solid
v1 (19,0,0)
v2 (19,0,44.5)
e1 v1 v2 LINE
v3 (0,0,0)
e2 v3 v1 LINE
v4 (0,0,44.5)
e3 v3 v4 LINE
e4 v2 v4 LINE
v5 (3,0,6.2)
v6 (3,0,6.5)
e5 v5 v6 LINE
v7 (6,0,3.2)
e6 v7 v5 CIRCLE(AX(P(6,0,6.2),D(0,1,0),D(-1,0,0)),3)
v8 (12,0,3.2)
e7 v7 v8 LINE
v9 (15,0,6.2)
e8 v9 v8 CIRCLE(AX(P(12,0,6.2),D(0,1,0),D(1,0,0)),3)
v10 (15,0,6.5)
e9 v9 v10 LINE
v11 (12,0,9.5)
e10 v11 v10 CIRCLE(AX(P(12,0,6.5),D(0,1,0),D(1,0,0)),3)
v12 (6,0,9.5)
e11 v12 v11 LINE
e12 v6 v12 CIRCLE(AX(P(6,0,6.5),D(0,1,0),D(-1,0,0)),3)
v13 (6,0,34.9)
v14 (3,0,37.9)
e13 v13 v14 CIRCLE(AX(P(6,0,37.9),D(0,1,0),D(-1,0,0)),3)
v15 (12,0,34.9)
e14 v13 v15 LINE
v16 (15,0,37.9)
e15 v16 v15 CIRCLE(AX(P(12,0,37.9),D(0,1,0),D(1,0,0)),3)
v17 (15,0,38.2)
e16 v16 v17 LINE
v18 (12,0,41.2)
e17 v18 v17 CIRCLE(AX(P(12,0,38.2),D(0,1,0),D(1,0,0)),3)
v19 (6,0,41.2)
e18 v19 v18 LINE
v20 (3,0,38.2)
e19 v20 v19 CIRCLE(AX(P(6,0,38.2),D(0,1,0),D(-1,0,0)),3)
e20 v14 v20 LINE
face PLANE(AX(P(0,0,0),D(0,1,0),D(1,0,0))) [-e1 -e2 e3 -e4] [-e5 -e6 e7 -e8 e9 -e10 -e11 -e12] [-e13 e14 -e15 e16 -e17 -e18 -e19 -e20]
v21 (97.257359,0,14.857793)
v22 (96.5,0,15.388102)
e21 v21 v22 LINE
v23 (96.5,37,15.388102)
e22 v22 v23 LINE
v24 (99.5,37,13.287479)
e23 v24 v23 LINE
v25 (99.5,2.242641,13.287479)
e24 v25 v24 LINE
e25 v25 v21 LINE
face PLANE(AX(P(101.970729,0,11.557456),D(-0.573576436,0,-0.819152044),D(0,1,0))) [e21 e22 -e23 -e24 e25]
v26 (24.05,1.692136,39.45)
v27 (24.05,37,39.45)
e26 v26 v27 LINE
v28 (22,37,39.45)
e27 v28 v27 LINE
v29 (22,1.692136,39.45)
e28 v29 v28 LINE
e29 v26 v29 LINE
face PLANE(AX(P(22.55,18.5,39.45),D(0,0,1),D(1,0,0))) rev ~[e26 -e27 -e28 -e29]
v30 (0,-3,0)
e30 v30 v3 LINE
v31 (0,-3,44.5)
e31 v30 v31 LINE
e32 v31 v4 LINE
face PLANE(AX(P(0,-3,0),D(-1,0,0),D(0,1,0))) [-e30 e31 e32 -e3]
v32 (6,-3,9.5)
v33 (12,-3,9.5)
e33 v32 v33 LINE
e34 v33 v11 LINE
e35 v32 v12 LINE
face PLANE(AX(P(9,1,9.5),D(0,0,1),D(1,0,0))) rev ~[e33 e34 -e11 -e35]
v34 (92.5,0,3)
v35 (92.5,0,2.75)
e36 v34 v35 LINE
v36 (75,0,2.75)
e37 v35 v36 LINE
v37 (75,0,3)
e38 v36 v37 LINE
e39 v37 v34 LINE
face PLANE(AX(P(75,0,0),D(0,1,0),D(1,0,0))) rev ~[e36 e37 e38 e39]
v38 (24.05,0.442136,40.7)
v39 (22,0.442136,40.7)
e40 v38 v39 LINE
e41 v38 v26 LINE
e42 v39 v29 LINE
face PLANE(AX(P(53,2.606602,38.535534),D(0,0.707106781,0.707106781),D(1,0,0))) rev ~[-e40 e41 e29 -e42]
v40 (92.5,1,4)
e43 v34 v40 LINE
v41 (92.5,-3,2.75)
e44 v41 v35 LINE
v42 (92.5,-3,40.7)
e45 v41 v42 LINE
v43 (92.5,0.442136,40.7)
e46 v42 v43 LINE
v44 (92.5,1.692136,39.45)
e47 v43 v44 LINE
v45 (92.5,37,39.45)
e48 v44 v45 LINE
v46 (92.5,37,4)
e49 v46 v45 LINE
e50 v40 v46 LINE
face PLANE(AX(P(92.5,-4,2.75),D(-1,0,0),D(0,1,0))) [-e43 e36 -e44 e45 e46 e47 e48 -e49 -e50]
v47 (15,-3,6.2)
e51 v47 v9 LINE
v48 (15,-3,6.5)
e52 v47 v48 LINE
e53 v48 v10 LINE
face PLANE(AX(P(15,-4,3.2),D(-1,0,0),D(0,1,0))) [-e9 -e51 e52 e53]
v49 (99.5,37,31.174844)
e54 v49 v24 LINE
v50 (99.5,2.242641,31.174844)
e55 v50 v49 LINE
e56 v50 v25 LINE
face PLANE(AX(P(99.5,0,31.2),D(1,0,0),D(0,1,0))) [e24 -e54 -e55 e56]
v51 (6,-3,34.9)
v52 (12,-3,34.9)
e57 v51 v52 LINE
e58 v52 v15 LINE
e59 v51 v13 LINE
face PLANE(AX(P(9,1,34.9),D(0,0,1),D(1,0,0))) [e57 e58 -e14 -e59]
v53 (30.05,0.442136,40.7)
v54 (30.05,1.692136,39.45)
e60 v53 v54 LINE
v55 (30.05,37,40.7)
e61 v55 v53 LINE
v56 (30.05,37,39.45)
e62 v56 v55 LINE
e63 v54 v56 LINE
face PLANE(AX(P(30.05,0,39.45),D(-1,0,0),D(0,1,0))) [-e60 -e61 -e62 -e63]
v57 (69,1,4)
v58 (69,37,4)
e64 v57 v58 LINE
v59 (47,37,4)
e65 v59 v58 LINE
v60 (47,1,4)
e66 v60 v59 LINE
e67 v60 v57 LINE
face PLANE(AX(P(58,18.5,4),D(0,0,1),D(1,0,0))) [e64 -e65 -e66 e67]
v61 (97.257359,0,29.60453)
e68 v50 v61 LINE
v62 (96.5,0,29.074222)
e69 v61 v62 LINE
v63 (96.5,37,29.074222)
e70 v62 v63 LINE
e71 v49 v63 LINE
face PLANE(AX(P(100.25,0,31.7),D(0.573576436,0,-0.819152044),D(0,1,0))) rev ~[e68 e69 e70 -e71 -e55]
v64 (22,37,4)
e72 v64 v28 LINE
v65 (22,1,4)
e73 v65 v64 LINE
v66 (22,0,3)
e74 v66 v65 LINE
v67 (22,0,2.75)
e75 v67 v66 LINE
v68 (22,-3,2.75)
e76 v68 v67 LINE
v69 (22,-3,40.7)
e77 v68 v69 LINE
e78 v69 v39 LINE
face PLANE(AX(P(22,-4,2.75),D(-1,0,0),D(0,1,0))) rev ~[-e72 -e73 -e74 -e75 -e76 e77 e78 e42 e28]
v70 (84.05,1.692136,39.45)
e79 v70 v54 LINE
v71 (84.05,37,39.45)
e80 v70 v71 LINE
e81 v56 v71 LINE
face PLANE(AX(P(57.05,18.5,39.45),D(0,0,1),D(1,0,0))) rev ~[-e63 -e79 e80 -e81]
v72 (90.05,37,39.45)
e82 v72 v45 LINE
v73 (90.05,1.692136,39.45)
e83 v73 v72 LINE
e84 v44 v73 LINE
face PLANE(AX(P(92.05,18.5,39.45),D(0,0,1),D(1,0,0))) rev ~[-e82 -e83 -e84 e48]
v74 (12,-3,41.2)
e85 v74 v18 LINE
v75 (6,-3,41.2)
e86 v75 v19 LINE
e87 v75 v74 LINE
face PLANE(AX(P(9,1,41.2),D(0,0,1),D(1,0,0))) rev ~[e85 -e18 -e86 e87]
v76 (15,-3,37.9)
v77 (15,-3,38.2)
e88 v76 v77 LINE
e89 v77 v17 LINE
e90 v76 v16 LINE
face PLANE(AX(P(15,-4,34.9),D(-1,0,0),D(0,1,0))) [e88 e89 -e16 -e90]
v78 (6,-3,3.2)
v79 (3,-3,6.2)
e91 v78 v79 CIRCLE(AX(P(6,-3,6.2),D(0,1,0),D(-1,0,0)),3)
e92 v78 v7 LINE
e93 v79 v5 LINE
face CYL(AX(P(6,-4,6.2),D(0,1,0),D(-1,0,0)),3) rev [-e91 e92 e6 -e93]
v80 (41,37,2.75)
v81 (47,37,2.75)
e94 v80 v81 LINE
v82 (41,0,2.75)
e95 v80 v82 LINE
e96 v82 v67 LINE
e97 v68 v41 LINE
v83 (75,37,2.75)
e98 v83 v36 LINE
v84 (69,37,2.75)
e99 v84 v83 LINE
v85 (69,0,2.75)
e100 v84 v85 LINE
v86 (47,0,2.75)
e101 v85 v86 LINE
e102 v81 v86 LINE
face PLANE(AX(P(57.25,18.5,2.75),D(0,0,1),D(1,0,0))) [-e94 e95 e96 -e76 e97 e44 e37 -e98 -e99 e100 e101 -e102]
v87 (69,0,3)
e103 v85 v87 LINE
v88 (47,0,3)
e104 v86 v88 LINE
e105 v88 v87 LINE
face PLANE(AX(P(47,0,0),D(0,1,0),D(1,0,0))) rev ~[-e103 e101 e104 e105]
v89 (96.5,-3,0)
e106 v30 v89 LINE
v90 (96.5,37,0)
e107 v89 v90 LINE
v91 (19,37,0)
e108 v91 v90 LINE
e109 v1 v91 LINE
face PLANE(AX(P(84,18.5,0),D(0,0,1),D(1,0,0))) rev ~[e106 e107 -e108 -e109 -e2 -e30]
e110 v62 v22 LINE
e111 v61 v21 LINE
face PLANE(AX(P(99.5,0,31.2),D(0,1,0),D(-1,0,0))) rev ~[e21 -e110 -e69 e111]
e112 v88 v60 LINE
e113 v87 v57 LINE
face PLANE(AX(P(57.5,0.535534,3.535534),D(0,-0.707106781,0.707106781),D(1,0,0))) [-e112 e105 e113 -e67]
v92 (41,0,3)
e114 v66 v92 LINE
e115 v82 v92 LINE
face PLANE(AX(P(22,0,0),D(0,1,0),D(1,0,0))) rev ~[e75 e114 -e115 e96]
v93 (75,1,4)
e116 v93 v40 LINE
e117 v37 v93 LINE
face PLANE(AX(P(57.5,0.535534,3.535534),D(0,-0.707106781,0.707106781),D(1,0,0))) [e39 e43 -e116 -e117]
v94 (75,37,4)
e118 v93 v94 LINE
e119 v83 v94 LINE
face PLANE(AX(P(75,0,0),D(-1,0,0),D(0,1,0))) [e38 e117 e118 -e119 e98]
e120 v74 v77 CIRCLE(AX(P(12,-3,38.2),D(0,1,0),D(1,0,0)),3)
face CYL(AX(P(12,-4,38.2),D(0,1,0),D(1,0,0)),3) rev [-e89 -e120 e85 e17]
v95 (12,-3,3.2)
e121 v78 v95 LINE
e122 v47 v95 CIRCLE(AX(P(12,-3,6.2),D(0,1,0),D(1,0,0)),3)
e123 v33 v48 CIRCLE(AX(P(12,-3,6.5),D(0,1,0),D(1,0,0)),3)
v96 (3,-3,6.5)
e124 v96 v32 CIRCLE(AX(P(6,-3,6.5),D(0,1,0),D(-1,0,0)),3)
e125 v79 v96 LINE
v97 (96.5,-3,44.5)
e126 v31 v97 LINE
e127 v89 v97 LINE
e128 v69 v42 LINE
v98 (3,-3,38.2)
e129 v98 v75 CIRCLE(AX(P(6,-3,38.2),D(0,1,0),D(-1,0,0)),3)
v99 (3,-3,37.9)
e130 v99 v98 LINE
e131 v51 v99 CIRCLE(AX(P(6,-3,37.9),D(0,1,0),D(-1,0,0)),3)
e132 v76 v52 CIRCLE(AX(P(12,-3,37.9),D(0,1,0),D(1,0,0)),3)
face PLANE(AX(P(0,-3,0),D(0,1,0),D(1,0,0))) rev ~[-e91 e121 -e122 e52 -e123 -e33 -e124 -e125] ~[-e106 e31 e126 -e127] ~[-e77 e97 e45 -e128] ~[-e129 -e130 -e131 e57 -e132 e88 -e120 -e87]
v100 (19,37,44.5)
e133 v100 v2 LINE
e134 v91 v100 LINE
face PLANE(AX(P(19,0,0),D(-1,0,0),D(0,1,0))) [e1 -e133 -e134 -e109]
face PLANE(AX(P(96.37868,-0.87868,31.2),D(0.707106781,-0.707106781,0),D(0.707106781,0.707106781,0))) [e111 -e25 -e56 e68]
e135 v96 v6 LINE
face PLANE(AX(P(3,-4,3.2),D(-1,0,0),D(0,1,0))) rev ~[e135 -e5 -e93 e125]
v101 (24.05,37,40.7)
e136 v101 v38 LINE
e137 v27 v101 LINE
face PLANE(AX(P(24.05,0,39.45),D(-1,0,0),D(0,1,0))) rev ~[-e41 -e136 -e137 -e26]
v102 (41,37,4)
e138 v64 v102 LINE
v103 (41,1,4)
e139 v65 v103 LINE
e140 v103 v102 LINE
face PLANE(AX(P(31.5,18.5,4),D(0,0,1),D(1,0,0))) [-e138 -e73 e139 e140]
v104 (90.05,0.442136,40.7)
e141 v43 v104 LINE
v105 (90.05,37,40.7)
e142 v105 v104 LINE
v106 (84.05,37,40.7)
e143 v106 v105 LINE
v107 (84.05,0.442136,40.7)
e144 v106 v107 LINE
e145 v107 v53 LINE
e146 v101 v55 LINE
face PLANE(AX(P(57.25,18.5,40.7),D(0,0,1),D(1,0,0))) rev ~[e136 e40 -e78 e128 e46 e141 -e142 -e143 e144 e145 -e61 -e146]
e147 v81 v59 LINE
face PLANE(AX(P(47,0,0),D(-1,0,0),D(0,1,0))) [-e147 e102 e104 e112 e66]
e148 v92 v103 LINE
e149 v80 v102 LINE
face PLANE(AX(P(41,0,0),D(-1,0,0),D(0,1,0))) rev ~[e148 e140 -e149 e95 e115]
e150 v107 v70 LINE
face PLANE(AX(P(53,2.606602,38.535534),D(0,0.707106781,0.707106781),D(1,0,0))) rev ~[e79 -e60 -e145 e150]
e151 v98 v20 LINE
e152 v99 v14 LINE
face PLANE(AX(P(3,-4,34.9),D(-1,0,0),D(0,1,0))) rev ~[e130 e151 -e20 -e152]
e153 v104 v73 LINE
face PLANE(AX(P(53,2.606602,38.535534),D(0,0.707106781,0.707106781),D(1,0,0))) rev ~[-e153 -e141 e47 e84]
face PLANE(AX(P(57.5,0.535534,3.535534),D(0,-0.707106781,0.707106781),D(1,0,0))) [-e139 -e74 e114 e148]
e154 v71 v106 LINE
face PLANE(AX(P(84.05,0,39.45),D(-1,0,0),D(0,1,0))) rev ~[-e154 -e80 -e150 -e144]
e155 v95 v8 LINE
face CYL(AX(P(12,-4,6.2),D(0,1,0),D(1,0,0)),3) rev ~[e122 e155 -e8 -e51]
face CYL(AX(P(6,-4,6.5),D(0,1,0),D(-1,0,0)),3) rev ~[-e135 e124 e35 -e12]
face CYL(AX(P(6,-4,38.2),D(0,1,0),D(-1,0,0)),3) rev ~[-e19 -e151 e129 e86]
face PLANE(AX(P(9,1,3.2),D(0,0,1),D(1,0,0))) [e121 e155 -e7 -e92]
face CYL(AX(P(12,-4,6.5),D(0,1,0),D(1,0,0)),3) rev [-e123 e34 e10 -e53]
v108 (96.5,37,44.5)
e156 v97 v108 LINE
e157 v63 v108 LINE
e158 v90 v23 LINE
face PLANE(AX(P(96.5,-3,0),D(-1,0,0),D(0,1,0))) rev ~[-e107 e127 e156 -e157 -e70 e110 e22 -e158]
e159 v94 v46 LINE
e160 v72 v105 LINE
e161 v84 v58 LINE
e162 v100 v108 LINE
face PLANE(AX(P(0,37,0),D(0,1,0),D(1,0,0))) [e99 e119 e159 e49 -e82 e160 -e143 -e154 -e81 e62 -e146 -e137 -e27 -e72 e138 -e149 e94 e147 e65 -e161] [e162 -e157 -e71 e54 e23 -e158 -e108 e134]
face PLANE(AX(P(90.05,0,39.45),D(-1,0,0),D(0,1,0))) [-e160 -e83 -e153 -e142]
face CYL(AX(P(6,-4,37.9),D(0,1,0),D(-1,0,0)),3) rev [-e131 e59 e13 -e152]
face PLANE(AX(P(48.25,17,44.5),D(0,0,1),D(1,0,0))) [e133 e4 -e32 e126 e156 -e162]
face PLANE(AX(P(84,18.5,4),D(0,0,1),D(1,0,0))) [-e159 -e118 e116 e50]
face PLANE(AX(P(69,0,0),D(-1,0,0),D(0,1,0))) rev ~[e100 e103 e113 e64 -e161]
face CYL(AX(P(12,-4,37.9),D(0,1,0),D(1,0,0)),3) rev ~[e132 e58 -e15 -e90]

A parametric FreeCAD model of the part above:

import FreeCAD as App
import Part
import Sketcher
Q = App.Units.Quantity


def edges_at(feature, points):
    """Names of the edges that pass closest to the given points."""
    edges = feature.Shape.Edges
    near = lambda p: min(range(len(edges)), key=lambda i: edges[i].distToShape(Part.Vertex(*p))[0])
    return sorted({f"Edge{near(p) + 1}" for p in points})

doc = App.newDocument("Part")
params = doc.addObject("Spreadsheet::Sheet", "Params")
for row, (alias, value) in enumerate([
    ("sketch1_width", "71 mm"),
    ("sketch1_height", "10 mm"),
    ("pad1_length", "10 mm"),
    ("sketch2_width", "22 mm"),
    ("sketch2_height", "37 mm"),
    ("pad2_length", "4 mm"),
    ("sketch3_width", "18 mm"),
    ("sketch3_height", "37 mm"),
    ("pad3_length", "4 mm"),
    ("sketch4_width", "19 mm"),
    ("sketch4_height", "37 mm"),
    ("pad4_length", "4 mm"),
    ("sketch5_width", "80 mm"),
    ("sketch5_height", "10 mm"),
    ("pad5_length", "10 mm"),
    ("sketch6_width", "3 mm"),
    ("sketch6_height", "37 mm"),
    ("pad6_length", "4 mm"),
    ("sketch7_width", "4 mm"),
    ("sketch7_height", "37 mm"),
    ("pad7_length", "4 mm"),
    ("sketch8_width", "54 mm"),
    ("sketch8_height", "37 mm"),
    ("pad8_length", "4 mm"),
    ("sketch9_width", "12 mm"),
    ("sketch9_height", "10 mm"),
    ("pad9_length", "6.3 mm"),
    ("fillet_radius", "3 mm"),
    ("sketch10_width", "12 mm"),
    ("sketch10_height", "10 mm"),
    ("pad10_length", "6.3 mm"),
    ("fillet2_radius", "3 mm"),
    ("sketch11_width", "19 mm"),
    ("sketch11_height", "37 mm"),
    ("pad11_length", "45 mm"),
    ("sketch12_height", "45 mm"),
    ("sketch12_width", "70.5 mm"),
    ("pad12_length", "37.95 mm"),
    ("sketch13_height", "40 mm"),
    ("sketch13_width", "96.5 mm"),
    ("pad13_length", "44.5 mm"),
    ("sketch14_width", "3 mm"),
    ("sketch14_height", "37 mm"),
    ("pad14_length", "17.92 mm"),
    ("sketch15_width", "3 mm"),
    ("sketch15_height", "37 mm"),
    ("pad15_length", "17.92 mm"),
    ("sketch16_width", "3 mm"),
    ("sketch16_height", "37 mm"),
    ("pad16_length", "17.92 mm"),
    ("sketch17_width", "3 mm"),
    ("sketch17_height", "37 mm"),
    ("pad17_length", "17.92 mm"),
], start=1):
    params.set(f"A{row}", alias)
    params.set(f"B{row}", "=" + value)
    params.setAlias(f"B{row}", alias)

body = doc.addObject("PartDesign::Body", "Body")

# Sketch on XY plane
sketch1 = doc.addObject("Sketcher::SketchObject", "Sketch")
body.addObject(sketch1)
sketch1.AttachmentSupport = (doc.XY_Plane, [""])
sketch1.MapMode = "FlatFace"
sketch1.addGeometry([
    Part.LineSegment(App.Vector(0, 10, 0), App.Vector(0, 0, 0)),
    Part.LineSegment(App.Vector(0, 0, 0), App.Vector(71, 0, 0)),
    Part.LineSegment(App.Vector(71, 0, 0), App.Vector(71, 10, 0)),
    Part.LineSegment(App.Vector(71, 10, 0), App.Vector(0, 10, 0)),
], False)
sketch1.addConstraint([
    Sketcher.Constraint("Coincident", 0, 2, 1, 1),
    Sketcher.Constraint("Coincident", 1, 2, 2, 1),
    Sketcher.Constraint("Coincident", 2, 2, 3, 1),
    Sketcher.Constraint("Coincident", 3, 2, 0, 1),
    Sketcher.Constraint("Vertical", 0),
    Sketcher.Constraint("Horizontal", 1),
    Sketcher.Constraint("Vertical", 2),
    Sketcher.Constraint("Horizontal", 3),
    Sketcher.Constraint("Coincident", 0, 2, -1, 1),
    Sketcher.Constraint("DistanceX", 1, 1, 1, 2, Q("71 mm")),
    Sketcher.Constraint("DistanceY", 0, 2, 0, 1, Q("10 mm")),
])
sketch1.setExpression("Constraints[9]", "Params.sketch1_width")
sketch1.setExpression("Constraints[10]", "Params.sketch1_height")
pad1 = doc.addObject("PartDesign::Pad", "Pad")
body.addObject(pad1)
pad1.Profile = sketch1
pad1.setExpression("Length", "Params.pad1_length")
body2 = doc.addObject("PartDesign::Body", "Body001")
doc.recompute()

body.Placement = App.Placement(App.Vector(22, -3, 0), App.Rotation(App.Vector(1, 0, 0), 45))
boolean = doc.addObject("PartDesign::Boolean", "Boolean")
body2.addObject(boolean)
boolean.Type = "Fuse"
boolean.addObjects([body])
body3 = doc.addObject("PartDesign::Body", "Body002")

# Sketch on XY plane
sketch2 = doc.addObject("Sketcher::SketchObject", "Sketch001")
body3.addObject(sketch2)
sketch2.AttachmentSupport = (doc.getObject("XY_Plane002"), [""])
sketch2.MapMode = "FlatFace"
sketch2.addGeometry([
    Part.LineSegment(App.Vector(47, 37, 0), App.Vector(47, 0, 0)),
    Part.LineSegment(App.Vector(47, 0, 0), App.Vector(69, 0, 0)),
    Part.LineSegment(App.Vector(69, 0, 0), App.Vector(69, 37, 0)),
    Part.LineSegment(App.Vector(69, 37, 0), App.Vector(47, 37, 0)),
], False)
sketch2.addConstraint([
    Sketcher.Constraint("Coincident", 0, 2, 1, 1),
    Sketcher.Constraint("Coincident", 1, 2, 2, 1),
    Sketcher.Constraint("Coincident", 2, 2, 3, 1),
    Sketcher.Constraint("Coincident", 3, 2, 0, 1),
    Sketcher.Constraint("Vertical", 0),
    Sketcher.Constraint("Horizontal", 1),
    Sketcher.Constraint("Vertical", 2),
    Sketcher.Constraint("Horizontal", 3),
    Sketcher.Constraint("PointOnObject", 0, 2, -1),
    Sketcher.Constraint("DistanceX", 1, 1, 1, 2, Q("22 mm")),
    Sketcher.Constraint("DistanceY", 0, 2, 0, 1, Q("37 mm")),
    Sketcher.Constraint("DistanceX", -1, 1, 0, 2, Q("47 mm")),
])
sketch2.setExpression("Constraints[9]", "Params.sketch2_width")
sketch2.setExpression("Constraints[10]", "Params.sketch2_height")
pad2 = doc.addObject("PartDesign::Pad", "Pad001")
body3.addObject(pad2)
pad2.Profile = sketch2
pad2.setExpression("Length", "Params.pad2_length")
body4 = doc.addObject("PartDesign::Body", "Body003")

# Sketch on XY plane
sketch3 = doc.addObject("Sketcher::SketchObject", "Sketch002")
body4.addObject(sketch3)
sketch3.AttachmentSupport = (doc.getObject("XY_Plane003"), [""])
sketch3.MapMode = "FlatFace"
sketch3.addGeometry([
    Part.LineSegment(App.Vector(75, 37, 0), App.Vector(75, 0, 0)),
    Part.LineSegment(App.Vector(75, 0, 0), App.Vector(93, 0, 0)),
    Part.LineSegment(App.Vector(93, 0, 0), App.Vector(93, 37, 0)),
    Part.LineSegment(App.Vector(93, 37, 0), App.Vector(75, 37, 0)),
], False)
sketch3.addConstraint([
    Sketcher.Constraint("Coincident", 0, 2, 1, 1),
    Sketcher.Constraint("Coincident", 1, 2, 2, 1),
    Sketcher.Constraint("Coincident", 2, 2, 3, 1),
    Sketcher.Constraint("Coincident", 3, 2, 0, 1),
    Sketcher.Constraint("Vertical", 0),
    Sketcher.Constraint("Horizontal", 1),
    Sketcher.Constraint("Vertical", 2),
    Sketcher.Constraint("Horizontal", 3),
    Sketcher.Constraint("PointOnObject", 0, 2, -1),
    Sketcher.Constraint("DistanceX", 1, 1, 1, 2, Q("18 mm")),
    Sketcher.Constraint("DistanceY", 0, 2, 0, 1, Q("37 mm")),
    Sketcher.Constraint("DistanceX", -1, 1, 0, 2, Q("75 mm")),
])
sketch3.setExpression("Constraints[9]", "Params.sketch3_width")
sketch3.setExpression("Constraints[10]", "Params.sketch3_height")
pad3 = doc.addObject("PartDesign::Pad", "Pad002")
body4.addObject(pad3)
pad3.Profile = sketch3
pad3.setExpression("Length", "Params.pad3_length")
body5 = doc.addObject("PartDesign::Body", "Body004")
body5.AllowCompound = True

# Sketch on XY plane
sketch4 = doc.addObject("Sketcher::SketchObject", "Sketch003")
body5.addObject(sketch4)
sketch4.AttachmentSupport = (doc.getObject("XY_Plane004"), [""])
sketch4.MapMode = "FlatFace"
sketch4.addGeometry([
    Part.LineSegment(App.Vector(22, 37, 0), App.Vector(22, 0, 0)),
    Part.LineSegment(App.Vector(22, 0, 0), App.Vector(41, 0, 0)),
    Part.LineSegment(App.Vector(41, 0, 0), App.Vector(41, 37, 0)),
    Part.LineSegment(App.Vector(41, 37, 0), App.Vector(22, 37, 0)),
], False)
sketch4.addConstraint([
    Sketcher.Constraint("Coincident", 0, 2, 1, 1),
    Sketcher.Constraint("Coincident", 1, 2, 2, 1),
    Sketcher.Constraint("Coincident", 2, 2, 3, 1),
    Sketcher.Constraint("Coincident", 3, 2, 0, 1),
    Sketcher.Constraint("Vertical", 0),
    Sketcher.Constraint("Horizontal", 1),
    Sketcher.Constraint("Vertical", 2),
    Sketcher.Constraint("Horizontal", 3),
    Sketcher.Constraint("PointOnObject", 0, 2, -1),
    Sketcher.Constraint("DistanceX", 1, 1, 1, 2, Q("19 mm")),
    Sketcher.Constraint("DistanceY", 0, 2, 0, 1, Q("37 mm")),
    Sketcher.Constraint("DistanceX", -1, 1, 0, 2, Q("22 mm")),
])
sketch4.setExpression("Constraints[9]", "Params.sketch4_width")
sketch4.setExpression("Constraints[10]", "Params.sketch4_height")
pad4 = doc.addObject("PartDesign::Pad", "Pad003")
body5.addObject(pad4)
pad4.Profile = sketch4
pad4.setExpression("Length", "Params.pad4_length")
doc.recompute()

boolean2 = doc.addObject("PartDesign::Boolean", "Boolean001")
body5.addObject(boolean2)
boolean2.Type = "Fuse"
boolean2.addObjects([body3])
doc.recompute()

boolean3 = doc.addObject("PartDesign::Boolean", "Boolean002")
body5.addObject(boolean3)
boolean3.Type = "Fuse"
boolean3.addObjects([body4])
doc.recompute()

boolean4 = doc.addObject("PartDesign::Boolean", "Boolean003")
body5.addObject(boolean4)
boolean4.Type = "Cut"
boolean4.addObjects([body2])
body6 = doc.addObject("PartDesign::Body", "Body005")

# Sketch on XY plane
sketch5 = doc.addObject("Sketcher::SketchObject", "Sketch004")
body6.addObject(sketch5)
sketch5.AttachmentSupport = (doc.getObject("XY_Plane005"), [""])
sketch5.MapMode = "FlatFace"
sketch5.addGeometry([
    Part.LineSegment(App.Vector(0, 10, 0), App.Vector(0, 0, 0)),
    Part.LineSegment(App.Vector(0, 0, 0), App.Vector(80, 0, 0)),
    Part.LineSegment(App.Vector(80, 0, 0), App.Vector(80, 10, 0)),
    Part.LineSegment(App.Vector(80, 10, 0), App.Vector(0, 10, 0)),
], False)
sketch5.addConstraint([
    Sketcher.Constraint("Coincident", 0, 2, 1, 1),
    Sketcher.Constraint("Coincident", 1, 2, 2, 1),
    Sketcher.Constraint("Coincident", 2, 2, 3, 1),
    Sketcher.Constraint("Coincident", 3, 2, 0, 1),
    Sketcher.Constraint("Vertical", 0),
    Sketcher.Constraint("Horizontal", 1),
    Sketcher.Constraint("Vertical", 2),
    Sketcher.Constraint("Horizontal", 3),
    Sketcher.Constraint("Coincident", 0, 2, -1, 1),
    Sketcher.Constraint("DistanceX", 1, 1, 1, 2, Q("80 mm")),
    Sketcher.Constraint("DistanceY", 0, 2, 0, 1, Q("10 mm")),
])
sketch5.setExpression("Constraints[9]", "Params.sketch5_width")
sketch5.setExpression("Constraints[10]", "Params.sketch5_height")
pad5 = doc.addObject("PartDesign::Pad", "Pad004")
body6.addObject(pad5)
pad5.Profile = sketch5
pad5.setExpression("Length", "Params.pad5_length")
body7 = doc.addObject("PartDesign::Body", "Body006")
doc.recompute()

body6.Placement = App.Placement(App.Vector(13, -8, 35), App.Rotation(App.Vector(1, 0, 0), 315))
boolean5 = doc.addObject("PartDesign::Boolean", "Boolean004")
body7.addObject(boolean5)
boolean5.Type = "Fuse"
boolean5.addObjects([body6])
body8 = doc.addObject("PartDesign::Body", "Body007")

# Sketch on XY plane
sketch6 = doc.addObject("Sketcher::SketchObject", "Sketch005")
body8.addObject(sketch6)
sketch6.AttachmentSupport = (doc.getObject("XY_Plane007"), [""])
sketch6.MapMode = "FlatFace"
sketch6.AttachmentOffset = App.Placement(App.Vector(0, 0, 39.45), App.Rotation())
sketch6.addGeometry([
    Part.LineSegment(App.Vector(21.1, 37, 0), App.Vector(21.1, 0, 0)),
    Part.LineSegment(App.Vector(21.1, 0, 0), App.Vector(24.1, 0, 0)),
    Part.LineSegment(App.Vector(24.1, 0, 0), App.Vector(24.1, 37, 0)),
    Part.LineSegment(App.Vector(24.1, 37, 0), App.Vector(21.1, 37, 0)),
], False)
sketch6.addConstraint([
    Sketcher.Constraint("Coincident", 0, 2, 1, 1),
    Sketcher.Constraint("Coincident", 1, 2, 2, 1),
    Sketcher.Constraint("Coincident", 2, 2, 3, 1),
    Sketcher.Constraint("Coincident", 3, 2, 0, 1),
    Sketcher.Constraint("Vertical", 0),
    Sketcher.Constraint("Horizontal", 1),
    Sketcher.Constraint("Vertical", 2),
    Sketcher.Constraint("Horizontal", 3),
    Sketcher.Constraint("PointOnObject", 0, 2, -1),
    Sketcher.Constraint("DistanceX", 1, 1, 1, 2, Q("3 mm")),
    Sketcher.Constraint("DistanceY", 0, 2, 0, 1, Q("37 mm")),
    Sketcher.Constraint("DistanceX", -1, 1, 0, 2, Q("21.05 mm")),
])
sketch6.setExpression("Constraints[9]", "Params.sketch6_width")
sketch6.setExpression("Constraints[10]", "Params.sketch6_height")
pad6 = doc.addObject("PartDesign::Pad", "Pad005")
body8.addObject(pad6)
pad6.Profile = sketch6
pad6.setExpression("Length", "Params.pad6_length")
body9 = doc.addObject("PartDesign::Body", "Body008")

# Sketch on XY plane
sketch7 = doc.addObject("Sketcher::SketchObject", "Sketch006")
body9.addObject(sketch7)
sketch7.AttachmentSupport = (doc.getObject("XY_Plane008"), [""])
sketch7.MapMode = "FlatFace"
sketch7.AttachmentOffset = App.Placement(App.Vector(0, 0, 39.45), App.Rotation())
sketch7.addGeometry([
    Part.LineSegment(App.Vector(90, 37, 0), App.Vector(90, 0, 0)),
    Part.LineSegment(App.Vector(90, 0, 0), App.Vector(94, 0, 0)),
    Part.LineSegment(App.Vector(94, 0, 0), App.Vector(94, 37, 0)),
    Part.LineSegment(App.Vector(94, 37, 0), App.Vector(90, 37, 0)),
], False)
sketch7.addConstraint([
    Sketcher.Constraint("Coincident", 0, 2, 1, 1),
    Sketcher.Constraint("Coincident", 1, 2, 2, 1),
    Sketcher.Constraint("Coincident", 2, 2, 3, 1),
    Sketcher.Constraint("Coincident", 3, 2, 0, 1),
    Sketcher.Constraint("Vertical", 0),
    Sketcher.Constraint("Horizontal", 1),
    Sketcher.Constraint("Vertical", 2),
    Sketcher.Constraint("Horizontal", 3),
    Sketcher.Constraint("PointOnObject", 0, 2, -1),
    Sketcher.Constraint("DistanceX", 1, 1, 1, 2, Q("4 mm")),
    Sketcher.Constraint("DistanceY", 0, 2, 0, 1, Q("37 mm")),
    Sketcher.Constraint("DistanceX", -1, 1, 0, 2, Q("90.05 mm")),
])
sketch7.setExpression("Constraints[9]", "Params.sketch7_width")
sketch7.setExpression("Constraints[10]", "Params.sketch7_height")
pad7 = doc.addObject("PartDesign::Pad", "Pad006")
body9.addObject(pad7)
pad7.Profile = sketch7
pad7.setExpression("Length", "Params.pad7_length")
body10 = doc.addObject("PartDesign::Body", "Body009")
body10.AllowCompound = True

# Sketch on XY plane
sketch8 = doc.addObject("Sketcher::SketchObject", "Sketch007")
body10.addObject(sketch8)
sketch8.AttachmentSupport = (doc.getObject("XY_Plane009"), [""])
sketch8.MapMode = "FlatFace"
sketch8.AttachmentOffset = App.Placement(App.Vector(0, 0, 39.45), App.Rotation())
sketch8.addGeometry([
    Part.LineSegment(App.Vector(30, 37, 0), App.Vector(30, 0, 0)),
    Part.LineSegment(App.Vector(30, 0, 0), App.Vector(84, 0, 0)),
    Part.LineSegment(App.Vector(84, 0, 0), App.Vector(84, 37, 0)),
    Part.LineSegment(App.Vector(84, 37, 0), App.Vector(30, 37, 0)),
], False)
sketch8.addConstraint([
    Sketcher.Constraint("Coincident", 0, 2, 1, 1),
    Sketcher.Constraint("Coincident", 1, 2, 2, 1),
    Sketcher.Constraint("Coincident", 2, 2, 3, 1),
    Sketcher.Constraint("Coincident", 3, 2, 0, 1),
    Sketcher.Constraint("Vertical", 0),
    Sketcher.Constraint("Horizontal", 1),
    Sketcher.Constraint("Vertical", 2),
    Sketcher.Constraint("Horizontal", 3),
    Sketcher.Constraint("PointOnObject", 0, 2, -1),
    Sketcher.Constraint("DistanceX", 1, 1, 1, 2, Q("54 mm")),
    Sketcher.Constraint("DistanceY", 0, 2, 0, 1, Q("37 mm")),
    Sketcher.Constraint("DistanceX", -1, 1, 0, 2, Q("30.05 mm")),
])
sketch8.setExpression("Constraints[9]", "Params.sketch8_width")
sketch8.setExpression("Constraints[10]", "Params.sketch8_height")
pad8 = doc.addObject("PartDesign::Pad", "Pad007")
body10.addObject(pad8)
pad8.Profile = sketch8
pad8.setExpression("Length", "Params.pad8_length")
doc.recompute()

boolean6 = doc.addObject("PartDesign::Boolean", "Boolean005")
body10.addObject(boolean6)
boolean6.Type = "Fuse"
boolean6.addObjects([body8])
doc.recompute()

boolean7 = doc.addObject("PartDesign::Boolean", "Boolean006")
body10.addObject(boolean7)
boolean7.Type = "Fuse"
boolean7.addObjects([body9])
doc.recompute()

boolean8 = doc.addObject("PartDesign::Boolean", "Boolean007")
body10.addObject(boolean8)
boolean8.Type = "Cut"
boolean8.addObjects([body7])
body11 = doc.addObject("PartDesign::Body", "Body010")

# Sketch on XY plane
sketch9 = doc.addObject("Sketcher::SketchObject", "Sketch008")
body11.addObject(sketch9)
sketch9.AttachmentSupport = (doc.getObject("XY_Plane010"), [""])
sketch9.MapMode = "FlatFace"
sketch9.AttachmentOffset = App.Placement(App.Vector(0, 0, 3.2), App.Rotation())
sketch9.addGeometry([
    Part.LineSegment(App.Vector(3, 7, 0), App.Vector(3, -3, 0)),
    Part.LineSegment(App.Vector(3, -3, 0), App.Vector(15, -3, 0)),
    Part.LineSegment(App.Vector(15, -3, 0), App.Vector(15, 7, 0)),
    Part.LineSegment(App.Vector(15, 7, 0), App.Vector(3, 7, 0)),
], False)
sketch9.addConstraint([
    Sketcher.Constraint("Coincident", 0, 2, 1, 1),
    Sketcher.Constraint("Coincident", 1, 2, 2, 1),
    Sketcher.Constraint("Coincident", 2, 2, 3, 1),
    Sketcher.Constraint("Coincident", 3, 2, 0, 1),
    Sketcher.Constraint("Vertical", 0),
    Sketcher.Constraint("Horizontal", 1),
    Sketcher.Constraint("Vertical", 2),
    Sketcher.Constraint("Horizontal", 3),
    Sketcher.Constraint("DistanceX", 1, 1, 1, 2, Q("12 mm")),
    Sketcher.Constraint("DistanceY", 0, 2, 0, 1, Q("10 mm")),
    Sketcher.Constraint("DistanceX", -1, 1, 0, 2, Q("3 mm")),
    Sketcher.Constraint("DistanceY", 0, 2, -1, 1, Q("3 mm")),
])
sketch9.setExpression("Constraints[8]", "Params.sketch9_width")
sketch9.setExpression("Constraints[9]", "Params.sketch9_height")
pad9 = doc.addObject("PartDesign::Pad", "Pad008")
body11.addObject(pad9)
pad9.Profile = sketch9
pad9.setExpression("Length", "Params.pad9_length")
doc.recompute()

fillet = doc.addObject("PartDesign::Fillet", "Fillet")
body11.addObject(fillet)
fillet.Base = (pad9, edges_at(pad9, [
    (3, 2, 9.5),
    (3, 2, 3.2),
    (15, 2, 9.5),
    (15, 2, 3.2),
]))
fillet.setExpression("Radius", "Params.fillet_radius")
body12 = doc.addObject("PartDesign::Body", "Body011")
doc.recompute()

body11.Placement = App.Placement(App.Vector(0, -1, 0), App.Rotation(App.Vector(0, 0, 1), 0))
boolean9 = doc.addObject("PartDesign::Boolean", "Boolean008")
body12.addObject(boolean9)
boolean9.Type = "Fuse"
boolean9.addObjects([body11])
body13 = doc.addObject("PartDesign::Body", "Body012")

# Sketch on XY plane
sketch10 = doc.addObject("Sketcher::SketchObject", "Sketch009")
body13.addObject(sketch10)
sketch10.AttachmentSupport = (doc.getObject("XY_Plane012"), [""])
sketch10.MapMode = "FlatFace"
sketch10.AttachmentOffset = App.Placement(App.Vector(0, 0, 3.2), App.Rotation())
sketch10.addGeometry([
    Part.LineSegment(App.Vector(3, 7, 0), App.Vector(3, -3, 0)),
    Part.LineSegment(App.Vector(3, -3, 0), App.Vector(15, -3, 0)),
    Part.LineSegment(App.Vector(15, -3, 0), App.Vector(15, 7, 0)),
    Part.LineSegment(App.Vector(15, 7, 0), App.Vector(3, 7, 0)),
], False)
sketch10.addConstraint([
    Sketcher.Constraint("Coincident", 0, 2, 1, 1),
    Sketcher.Constraint("Coincident", 1, 2, 2, 1),
    Sketcher.Constraint("Coincident", 2, 2, 3, 1),
    Sketcher.Constraint("Coincident", 3, 2, 0, 1),
    Sketcher.Constraint("Vertical", 0),
    Sketcher.Constraint("Horizontal", 1),
    Sketcher.Constraint("Vertical", 2),
    Sketcher.Constraint("Horizontal", 3),
    Sketcher.Constraint("DistanceX", 1, 1, 1, 2, Q("12 mm")),
    Sketcher.Constraint("DistanceY", 0, 2, 0, 1, Q("10 mm")),
    Sketcher.Constraint("DistanceX", -1, 1, 0, 2, Q("3 mm")),
    Sketcher.Constraint("DistanceY", 0, 2, -1, 1, Q("3 mm")),
])
sketch10.setExpression("Constraints[8]", "Params.sketch10_width")
sketch10.setExpression("Constraints[9]", "Params.sketch10_height")
pad10 = doc.addObject("PartDesign::Pad", "Pad009")
body13.addObject(pad10)
pad10.Profile = sketch10
pad10.setExpression("Length", "Params.pad10_length")
doc.recompute()

fillet2 = doc.addObject("PartDesign::Fillet", "Fillet001")
body13.addObject(fillet2)
fillet2.Base = (pad10, edges_at(pad10, [
    (3, 2, 9.5),
    (3, 2, 3.2),
    (15, 2, 9.5),
    (15, 2, 3.2),
]))
fillet2.setExpression("Radius", "Params.fillet2_radius")
body14 = doc.addObject("PartDesign::Body", "Body013")
doc.recompute()

body13.Placement = App.Placement(App.Vector(0, -1, 31.7), App.Rotation(App.Vector(0, 0, 1), 0))
boolean10 = doc.addObject("PartDesign::Boolean", "Boolean009")
body14.addObject(boolean10)
boolean10.Type = "Fuse"
boolean10.addObjects([body13])
body15 = doc.addObject("PartDesign::Body", "Body014")

# Sketch on XY plane
sketch11 = doc.addObject("Sketcher::SketchObject", "Sketch010")
body15.addObject(sketch11)
sketch11.AttachmentSupport = (doc.getObject("XY_Plane014"), [""])
sketch11.MapMode = "FlatFace"
sketch11.addGeometry([
    Part.LineSegment(App.Vector(0, 37, 0), App.Vector(0, 0, 0)),
    Part.LineSegment(App.Vector(0, 0, 0), App.Vector(19, 0, 0)),
    Part.LineSegment(App.Vector(19, 0, 0), App.Vector(19, 37, 0)),
    Part.LineSegment(App.Vector(19, 37, 0), App.Vector(0, 37, 0)),
], False)
sketch11.addConstraint([
    Sketcher.Constraint("Coincident", 0, 2, 1, 1),
    Sketcher.Constraint("Coincident", 1, 2, 2, 1),
    Sketcher.Constraint("Coincident", 2, 2, 3, 1),
    Sketcher.Constraint("Coincident", 3, 2, 0, 1),
    Sketcher.Constraint("Vertical", 0),
    Sketcher.Constraint("Horizontal", 1),
    Sketcher.Constraint("Vertical", 2),
    Sketcher.Constraint("Horizontal", 3),
    Sketcher.Constraint("Coincident", 0, 2, -1, 1),
    Sketcher.Constraint("DistanceX", 1, 1, 1, 2, Q("19 mm")),
    Sketcher.Constraint("DistanceY", 0, 2, 0, 1, Q("37 mm")),
])
sketch11.setExpression("Constraints[9]", "Params.sketch11_width")
sketch11.setExpression("Constraints[10]", "Params.sketch11_height")
pad11 = doc.addObject("PartDesign::Pad", "Pad010")
body15.addObject(pad11)
pad11.Profile = sketch11
pad11.setExpression("Length", "Params.pad11_length")
doc.recompute()

boolean11 = doc.addObject("PartDesign::Boolean", "Boolean010")
body15.addObject(boolean11)
boolean11.Type = "Fuse"
boolean11.addObjects([body12])
doc.recompute()

boolean12 = doc.addObject("PartDesign::Boolean", "Boolean011")
body15.addObject(boolean12)
boolean12.Type = "Fuse"
boolean12.addObjects([body14])
body16 = doc.addObject("PartDesign::Body", "Body015")

# Sketch on XY plane
sketch12 = doc.addObject("Sketcher::SketchObject", "Sketch011")
body16.addObject(sketch12)
sketch12.AttachmentSupport = (doc.getObject("XY_Plane015"), [""])
sketch12.MapMode = "FlatFace"
sketch12.AttachmentOffset = App.Placement(App.Vector(0, 0, 2.75), App.Rotation())
sketch12.addGeometry([
    Part.LineSegment(App.Vector(22, 41, 0), App.Vector(22, -4, 0)),
    Part.LineSegment(App.Vector(22, -4, 0), App.Vector(92, -4, 0)),
    Part.LineSegment(App.Vector(92, -4, 0), App.Vector(92, 41, 0)),
    Part.LineSegment(App.Vector(92, 41, 0), App.Vector(22, 41, 0)),
], False)
sketch12.addConstraint([
    Sketcher.Constraint("Coincident", 0, 2, 1, 1),
    Sketcher.Constraint("Coincident", 1, 2, 2, 1),
    Sketcher.Constraint("Coincident", 2, 2, 3, 1),
    Sketcher.Constraint("Coincident", 3, 2, 0, 1),
    Sketcher.Constraint("Vertical", 0),
    Sketcher.Constraint("Horizontal", 1),
    Sketcher.Constraint("Vertical", 2),
    Sketcher.Constraint("Horizontal", 3),
    Sketcher.Constraint("DistanceY", 0, 2, 0, 1, Q("45 mm")),
    Sketcher.Constraint("DistanceX", 1, 1, 1, 2, Q("70.5 mm")),
    Sketcher.Constraint("DistanceX", -1, 1, 0, 2, Q("22 mm")),
    Sketcher.Constraint("DistanceY", 0, 2, -1, 1, Q("4 mm")),
])
sketch12.setExpression("Constraints[8]", "Params.sketch12_height")
sketch12.setExpression("Constraints[9]", "Params.sketch12_width")
pad12 = doc.addObject("PartDesign::Pad", "Pad011")
body16.addObject(pad12)
pad12.Profile = sketch12
pad12.setExpression("Length", "Params.pad12_length")
body17 = doc.addObject("PartDesign::Body", "Body016")

# Sketch on XY plane
sketch13 = doc.addObject("Sketcher::SketchObject", "Sketch012")
body17.addObject(sketch13)
sketch13.AttachmentSupport = (doc.getObject("XY_Plane016"), [""])
sketch13.MapMode = "FlatFace"
sketch13.addGeometry([
    Part.LineSegment(App.Vector(0, 37, 0), App.Vector(0, -3, 0)),
    Part.LineSegment(App.Vector(0, -3, 0), App.Vector(96, -3, 0)),
    Part.LineSegment(App.Vector(96, -3, 0), App.Vector(96, 37, 0)),
    Part.LineSegment(App.Vector(96, 37, 0), App.Vector(0, 37, 0)),
], False)
sketch13.addConstraint([
    Sketcher.Constraint("Coincident", 0, 2, 1, 1),
    Sketcher.Constraint("Coincident", 1, 2, 2, 1),
    Sketcher.Constraint("Coincident", 2, 2, 3, 1),
    Sketcher.Constraint("Coincident", 3, 2, 0, 1),
    Sketcher.Constraint("Vertical", 0),
    Sketcher.Constraint("Horizontal", 1),
    Sketcher.Constraint("Vertical", 2),
    Sketcher.Constraint("Horizontal", 3),
    Sketcher.Constraint("PointOnObject", 0, 2, -2),
    Sketcher.Constraint("DistanceY", 0, 2, 0, 1, Q("40 mm")),
    Sketcher.Constraint("DistanceX", 1, 1, 1, 2, Q("96.5 mm")),
    Sketcher.Constraint("DistanceY", 0, 2, -1, 1, Q("3 mm")),
])
sketch13.setExpression("Constraints[9]", "Params.sketch13_height")
sketch13.setExpression("Constraints[10]", "Params.sketch13_width")
pad13 = doc.addObject("PartDesign::Pad", "Pad012")
body17.addObject(pad13)
pad13.Profile = sketch13
pad13.setExpression("Length", "Params.pad13_length")
body18 = doc.addObject("PartDesign::Body", "Body017")

# Sketch on XY plane
sketch14 = doc.addObject("Sketcher::SketchObject", "Sketch013")
body18.addObject(sketch14)
sketch14.AttachmentSupport = (doc.getObject("XY_Plane017"), [""])
sketch14.MapMode = "FlatFace"
sketch14.addGeometry([
    Part.LineSegment(App.Vector(0, 37, 0), App.Vector(0, 0, 0)),
    Part.LineSegment(App.Vector(0, 0, 0), App.Vector(3, 0, 0)),
    Part.LineSegment(App.Vector(3, 0, 0), App.Vector(3, 37, 0)),
    Part.LineSegment(App.Vector(3, 37, 0), App.Vector(0, 37, 0)),
], False)
sketch14.addConstraint([
    Sketcher.Constraint("Coincident", 0, 2, 1, 1),
    Sketcher.Constraint("Coincident", 1, 2, 2, 1),
    Sketcher.Constraint("Coincident", 2, 2, 3, 1),
    Sketcher.Constraint("Coincident", 3, 2, 0, 1),
    Sketcher.Constraint("Vertical", 0),
    Sketcher.Constraint("Horizontal", 1),
    Sketcher.Constraint("Vertical", 2),
    Sketcher.Constraint("Horizontal", 3),
    Sketcher.Constraint("Coincident", 0, 2, -1, 1),
    Sketcher.Constraint("DistanceX", 1, 1, 1, 2, Q("3 mm")),
    Sketcher.Constraint("DistanceY", 0, 2, 0, 1, Q("37 mm")),
])
sketch14.setExpression("Constraints[9]", "Params.sketch14_width")
sketch14.setExpression("Constraints[10]", "Params.sketch14_height")
pad14 = doc.addObject("PartDesign::Pad", "Pad013")
body18.addObject(pad14)
pad14.Profile = sketch14
pad14.setExpression("Length", "Params.pad14_length")
body19 = doc.addObject("PartDesign::Body", "Body018")
doc.recompute()

body18.Placement = App.Placement(App.Vector(314.75, -3, 13.25), App.Rotation(App.Vector(0, 0, 1), 45))
boolean13 = doc.addObject("PartDesign::Boolean", "Boolean012")
body19.addObject(boolean13)
boolean13.Type = "Fuse"
boolean13.addObjects([body18])
body20 = doc.addObject("PartDesign::Body", "Body019")

# Sketch on XY plane
sketch15 = doc.addObject("Sketcher::SketchObject", "Sketch014")
body20.addObject(sketch15)
sketch15.AttachmentSupport = (doc.getObject("XY_Plane019"), [""])
sketch15.MapMode = "FlatFace"
sketch15.addGeometry([
    Part.LineSegment(App.Vector(0, 37, 0), App.Vector(0, 0, 0)),
    Part.LineSegment(App.Vector(0, 0, 0), App.Vector(3, 0, 0)),
    Part.LineSegment(App.Vector(3, 0, 0), App.Vector(3, 37, 0)),
    Part.LineSegment(App.Vector(3, 37, 0), App.Vector(0, 37, 0)),
], False)
sketch15.addConstraint([
    Sketcher.Constraint("Coincident", 0, 2, 1, 1),
    Sketcher.Constraint("Coincident", 1, 2, 2, 1),
    Sketcher.Constraint("Coincident", 2, 2, 3, 1),
    Sketcher.Constraint("Coincident", 3, 2, 0, 1),
    Sketcher.Constraint("Vertical", 0),
    Sketcher.Constraint("Horizontal", 1),
    Sketcher.Constraint("Vertical", 2),
    Sketcher.Constraint("Horizontal", 3),
    Sketcher.Constraint("Coincident", 0, 2, -1, 1),
    Sketcher.Constraint("DistanceX", 1, 1, 1, 2, Q("3 mm")),
    Sketcher.Constraint("DistanceY", 0, 2, 0, 1, Q("37 mm")),
])
sketch15.setExpression("Constraints[9]", "Params.sketch15_width")
sketch15.setExpression("Constraints[10]", "Params.sketch15_height")
pad15 = doc.addObject("PartDesign::Pad", "Pad014")
body20.addObject(pad15)
pad15.Profile = sketch15
pad15.setExpression("Length", "Params.pad15_length")
body21 = doc.addObject("PartDesign::Body", "Body020")
doc.recompute()

body20.Placement = App.Placement(App.Vector(313, 0, 12.75), App.Rotation(App.Vector(0, 1, 0), 55))
boolean14 = doc.addObject("PartDesign::Boolean", "Boolean013")
body21.addObject(boolean14)
boolean14.Type = "Fuse"
boolean14.addObjects([body20])
body22 = doc.addObject("PartDesign::Body", "Body021")

# Sketch on XY plane
sketch16 = doc.addObject("Sketcher::SketchObject", "Sketch015")
body22.addObject(sketch16)
sketch16.AttachmentSupport = (doc.getObject("XY_Plane021"), [""])
sketch16.MapMode = "FlatFace"
sketch16.addGeometry([
    Part.LineSegment(App.Vector(0, 37, 0), App.Vector(0, 0, 0)),
    Part.LineSegment(App.Vector(0, 0, 0), App.Vector(3, 0, 0)),
    Part.LineSegment(App.Vector(3, 0, 0), App.Vector(3, 37, 0)),
    Part.LineSegment(App.Vector(3, 37, 0), App.Vector(0, 37, 0)),
], False)
sketch16.addConstraint([
    Sketcher.Constraint("Coincident", 0, 2, 1, 1),
    Sketcher.Constraint("Coincident", 1, 2, 2, 1),
    Sketcher.Constraint("Coincident", 2, 2, 3, 1),
    Sketcher.Constraint("Coincident", 3, 2, 0, 1),
    Sketcher.Constraint("Vertical", 0),
    Sketcher.Constraint("Horizontal", 1),
    Sketcher.Constraint("Vertical", 2),
    Sketcher.Constraint("Horizontal", 3),
    Sketcher.Constraint("Coincident", 0, 2, -1, 1),
    Sketcher.Constraint("DistanceX", 1, 1, 1, 2, Q("3 mm")),
    Sketcher.Constraint("DistanceY", 0, 2, 0, 1, Q("37 mm")),
])
sketch16.setExpression("Constraints[9]", "Params.sketch16_width")
sketch16.setExpression("Constraints[10]", "Params.sketch16_height")
pad16 = doc.addObject("PartDesign::Pad", "Pad015")
body22.addObject(pad16)
pad16.Profile = sketch16
pad16.setExpression("Length", "Params.pad16_length")
body23 = doc.addObject("PartDesign::Body", "Body022")
body23.AllowCompound = True
doc.recompute()

body22.Placement = App.Placement(App.Vector(313, 0, 35.35), App.Rotation(App.Vector(0, 1, 0), 125))
boolean15 = doc.addObject("PartDesign::Boolean", "Boolean014")
body23.addObject(boolean15)
boolean15.Type = "Fuse"
boolean15.addObjects([body22])
doc.recompute()

boolean16 = doc.addObject("PartDesign::Boolean", "Boolean015")
body23.addObject(boolean16)
boolean16.Type = "Fuse"
boolean16.addObjects([body21])
body24 = doc.addObject("PartDesign::Body", "Body023")

# Sketch on XY plane
sketch17 = doc.addObject("Sketcher::SketchObject", "Sketch016")
body24.addObject(sketch17)
sketch17.AttachmentSupport = (doc.getObject("XY_Plane023"), [""])
sketch17.MapMode = "FlatFace"
sketch17.AttachmentOffset = App.Placement(App.Vector(0, 0, 13.25), App.Rotation())
sketch17.addGeometry([
    Part.LineSegment(App.Vector(313.8, 37, 0), App.Vector(313.8, 0, 0)),
    Part.LineSegment(App.Vector(313.8, 0, 0), App.Vector(316.8, 0, 0)),
    Part.LineSegment(App.Vector(316.8, 0, 0), App.Vector(316.8, 37, 0)),
    Part.LineSegment(App.Vector(316.8, 37, 0), App.Vector(313.8, 37, 0)),
], False)
sketch17.addConstraint([
    Sketcher.Constraint("Coincident", 0, 2, 1, 1),
    Sketcher.Constraint("Coincident", 1, 2, 2, 1),
    Sketcher.Constraint("Coincident", 2, 2, 3, 1),
    Sketcher.Constraint("Coincident", 3, 2, 0, 1),
    Sketcher.Constraint("Vertical", 0),
    Sketcher.Constraint("Horizontal", 1),
    Sketcher.Constraint("Vertical", 2),
    Sketcher.Constraint("Horizontal", 3),
    Sketcher.Constraint("PointOnObject", 0, 2, -1),
    Sketcher.Constraint("DistanceX", 1, 1, 1, 2, Q("3 mm")),
    Sketcher.Constraint("DistanceY", 0, 2, 0, 1, Q("37 mm")),
    Sketcher.Constraint("DistanceX", -1, 1, 0, 2, Q("313.75 mm")),
])
sketch17.setExpression("Constraints[9]", "Params.sketch17_width")
sketch17.setExpression("Constraints[10]", "Params.sketch17_height")
pad17 = doc.addObject("PartDesign::Pad", "Pad016")
body24.addObject(pad17)
pad17.Profile = sketch17
pad17.setExpression("Length", "Params.pad17_length")
doc.recompute()

boolean17 = doc.addObject("PartDesign::Boolean", "Boolean016")
body24.addObject(boolean17)
boolean17.Type = "Cut"
boolean17.addObjects([body23])
doc.recompute()

boolean18 = doc.addObject("PartDesign::Boolean", "Boolean017")
body24.addObject(boolean18)
boolean18.Type = "Cut"
boolean18.addObjects([body19])
body25 = doc.addObject("PartDesign::Body", "Body024")
doc.recompute()

body24.Placement = App.Placement(App.Vector(413.25, 0, 44.45), App.Rotation(App.Vector(0, 1, 0), 180))
boolean19 = doc.addObject("PartDesign::Boolean", "Boolean018")
body25.addObject(boolean19)
boolean19.Type = "Fuse"
boolean19.addObjects([body24])
doc.recompute()

boolean20 = doc.addObject("PartDesign::Boolean", "Boolean019")
body25.addObject(boolean20)
boolean20.Type = "Fuse"
boolean20.addObjects([body17])
doc.recompute()

boolean21 = doc.addObject("PartDesign::Boolean", "Boolean020")
body25.addObject(boolean21)
boolean21.Type = "Cut"
boolean21.addObjects([body16])
doc.recompute()

boolean22 = doc.addObject("PartDesign::Boolean", "Boolean021")
body25.addObject(boolean22)
boolean22.Type = "Cut"
boolean22.addObjects([body15])
doc.recompute()

boolean23 = doc.addObject("PartDesign::Boolean", "Boolean022")
body25.addObject(boolean23)
boolean23.Type = "Fuse"
boolean23.addObjects([body5])
doc.recompute()

boolean24 = doc.addObject("PartDesign::Boolean", "Boolean023")
body25.addObject(boolean24)
boolean24.Type = "Fuse"
boolean24.addObjects([body10])

doc.recompute()
